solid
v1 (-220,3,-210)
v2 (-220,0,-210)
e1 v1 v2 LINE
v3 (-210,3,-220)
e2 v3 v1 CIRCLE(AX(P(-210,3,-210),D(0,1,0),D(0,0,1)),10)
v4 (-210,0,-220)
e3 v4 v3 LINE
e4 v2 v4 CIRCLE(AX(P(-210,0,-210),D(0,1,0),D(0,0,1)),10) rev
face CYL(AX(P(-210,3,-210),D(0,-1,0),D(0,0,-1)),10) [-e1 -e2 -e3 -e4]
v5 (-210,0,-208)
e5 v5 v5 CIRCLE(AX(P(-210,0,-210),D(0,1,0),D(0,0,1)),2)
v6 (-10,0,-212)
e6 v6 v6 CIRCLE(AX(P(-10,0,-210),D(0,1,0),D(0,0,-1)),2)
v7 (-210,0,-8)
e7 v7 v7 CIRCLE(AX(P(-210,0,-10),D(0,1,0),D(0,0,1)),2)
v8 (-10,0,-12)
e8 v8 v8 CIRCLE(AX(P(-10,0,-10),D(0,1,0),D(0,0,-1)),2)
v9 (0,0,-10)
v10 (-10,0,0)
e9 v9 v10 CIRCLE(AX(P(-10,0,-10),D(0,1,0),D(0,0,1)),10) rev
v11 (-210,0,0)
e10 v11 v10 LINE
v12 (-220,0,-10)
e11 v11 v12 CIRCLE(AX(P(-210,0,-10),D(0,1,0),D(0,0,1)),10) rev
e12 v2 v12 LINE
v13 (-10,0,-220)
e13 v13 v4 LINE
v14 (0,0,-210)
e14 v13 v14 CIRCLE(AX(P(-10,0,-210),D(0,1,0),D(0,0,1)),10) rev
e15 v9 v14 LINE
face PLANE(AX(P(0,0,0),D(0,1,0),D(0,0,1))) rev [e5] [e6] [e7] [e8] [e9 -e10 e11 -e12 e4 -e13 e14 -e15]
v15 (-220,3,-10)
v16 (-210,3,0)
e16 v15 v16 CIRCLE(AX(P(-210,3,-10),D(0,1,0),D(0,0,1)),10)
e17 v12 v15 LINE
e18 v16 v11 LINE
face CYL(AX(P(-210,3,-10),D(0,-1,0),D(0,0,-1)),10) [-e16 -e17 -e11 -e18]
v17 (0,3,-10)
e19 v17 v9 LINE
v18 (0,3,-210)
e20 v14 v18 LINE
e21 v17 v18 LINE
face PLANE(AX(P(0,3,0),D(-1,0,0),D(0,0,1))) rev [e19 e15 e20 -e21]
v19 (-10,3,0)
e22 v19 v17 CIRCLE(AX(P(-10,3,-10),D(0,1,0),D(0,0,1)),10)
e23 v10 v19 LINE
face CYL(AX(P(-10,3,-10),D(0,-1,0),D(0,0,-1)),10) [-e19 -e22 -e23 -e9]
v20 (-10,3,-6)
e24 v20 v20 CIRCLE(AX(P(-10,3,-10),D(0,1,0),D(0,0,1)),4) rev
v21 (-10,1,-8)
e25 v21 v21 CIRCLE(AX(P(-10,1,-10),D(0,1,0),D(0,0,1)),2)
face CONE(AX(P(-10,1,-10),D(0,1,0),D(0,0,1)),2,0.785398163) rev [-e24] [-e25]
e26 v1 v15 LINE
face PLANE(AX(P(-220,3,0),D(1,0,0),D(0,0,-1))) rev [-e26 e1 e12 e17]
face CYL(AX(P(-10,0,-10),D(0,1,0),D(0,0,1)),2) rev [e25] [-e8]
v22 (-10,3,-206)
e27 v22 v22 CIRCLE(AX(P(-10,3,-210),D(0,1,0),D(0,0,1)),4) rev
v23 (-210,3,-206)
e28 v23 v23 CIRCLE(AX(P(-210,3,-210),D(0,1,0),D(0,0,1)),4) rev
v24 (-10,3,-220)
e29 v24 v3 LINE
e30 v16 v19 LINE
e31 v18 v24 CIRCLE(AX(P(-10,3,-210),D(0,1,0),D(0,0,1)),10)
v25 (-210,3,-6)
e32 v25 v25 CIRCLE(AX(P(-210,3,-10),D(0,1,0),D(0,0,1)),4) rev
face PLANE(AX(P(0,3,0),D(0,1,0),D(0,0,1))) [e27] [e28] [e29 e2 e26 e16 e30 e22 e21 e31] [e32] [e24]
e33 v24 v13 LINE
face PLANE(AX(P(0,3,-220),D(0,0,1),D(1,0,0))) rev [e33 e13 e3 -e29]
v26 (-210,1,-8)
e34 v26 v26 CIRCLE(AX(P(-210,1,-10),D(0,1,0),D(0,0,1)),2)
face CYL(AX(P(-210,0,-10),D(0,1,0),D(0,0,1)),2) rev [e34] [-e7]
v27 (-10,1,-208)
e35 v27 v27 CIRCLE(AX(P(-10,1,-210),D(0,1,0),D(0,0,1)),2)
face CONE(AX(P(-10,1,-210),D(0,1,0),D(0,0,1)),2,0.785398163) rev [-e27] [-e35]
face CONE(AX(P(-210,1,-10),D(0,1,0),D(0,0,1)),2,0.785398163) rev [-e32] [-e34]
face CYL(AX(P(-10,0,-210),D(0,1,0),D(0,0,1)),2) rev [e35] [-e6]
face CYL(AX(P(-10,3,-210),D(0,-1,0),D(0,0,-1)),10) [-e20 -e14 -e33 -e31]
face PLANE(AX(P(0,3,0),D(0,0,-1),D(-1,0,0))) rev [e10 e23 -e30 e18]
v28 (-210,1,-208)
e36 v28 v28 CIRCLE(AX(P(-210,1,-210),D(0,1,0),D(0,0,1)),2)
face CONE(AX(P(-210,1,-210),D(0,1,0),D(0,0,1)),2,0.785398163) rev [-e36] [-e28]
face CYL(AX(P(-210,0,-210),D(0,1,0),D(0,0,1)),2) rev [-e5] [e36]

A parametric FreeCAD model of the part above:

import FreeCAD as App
import Part
import Sketcher

V = App.Vector


def edges_at(feature, points):
    """Names of the edges that pass closest to the given points."""
    edges = feature.Shape.Edges
    near = lambda p: min(range(len(edges)), key=lambda i: edges[i].distToShape(Part.Vertex(*p))[0])
    return sorted({f"Edge{near(p) + 1}" for p in points})

doc = App.newDocument("Part")
params = doc.addObject("Spreadsheet::Sheet", "Params")
for row, (alias, value) in enumerate([
    ("sketch1_width", "220 mm"),
    ("pad1_length", "3 mm"),
    ("fillet_radius", "10 mm"),
    ("sketch2_diameter", "4 mm"),
    ("pocket1_length", "3 mm"),
    ("chamfer_size", "2 mm"),
], start=1):
    params.set(f"A{row}", alias)
    params.set(f"B{row}", "=" + value)
    params.setAlias(f"B{row}", alias)

body = doc.addObject("PartDesign::Body", "Body")

# Sketch on XZ plane
sketch1 = doc.addObject("Sketcher::SketchObject", "Sketch")
body.addObject(sketch1)
sketch1.AttachmentSupport = (doc.XZ_Plane, [""])
sketch1.MapMode = "FlatFace"
sketch1.addGeometry(Part.LineSegment(V(-220, -220, 0), V(-220, 0, 0)), False)
sketch1.addGeometry(Part.LineSegment(V(-220, 0, 0), V(0, 0, 0)), False)
sketch1.addGeometry(Part.LineSegment(V(0, 0, 0), V(0, -220, 0)), False)
sketch1.addGeometry(Part.LineSegment(V(0, -220, 0), V(-220, -220, 0)), False)
sketch1.addConstraint(Sketcher.Constraint("Coincident", 0, 2, 1, 1))
sketch1.addConstraint(Sketcher.Constraint("Coincident", 1, 2, 2, 1))
sketch1.addConstraint(Sketcher.Constraint("Coincident", 2, 2, 3, 1))
sketch1.addConstraint(Sketcher.Constraint("Coincident", 3, 2, 0, 1))
sketch1.addConstraint(Sketcher.Constraint("Vertical", 0))
sketch1.addConstraint(Sketcher.Constraint("Horizontal", 1))
sketch1.addConstraint(Sketcher.Constraint("Vertical", 2))
sketch1.addConstraint(Sketcher.Constraint("Horizontal", 3))
sketch1.addConstraint(Sketcher.Constraint("Coincident", 1, 2, -1, 1))
sketch1.addConstraint(Sketcher.Constraint("Equal", 3, 0))
sketch1.addConstraint(Sketcher.Constraint("DistanceX", 1, 1, 1, 2, 220.0))
sketch1.setExpression("Constraints[10]", "Params.sketch1_width")
pad1 = doc.addObject("PartDesign::Pad", "Pad")
body.addObject(pad1)
pad1.Profile = sketch1
pad1.setExpression("Length", "Params.pad1_length")
pad1.Reversed = True
doc.recompute()

fillet = doc.addObject("PartDesign::Fillet", "Fillet")
body.addObject(fillet)
fillet.Base = (pad1, edges_at(pad1, [
    (0, 1.5, 0),
    (-220, 1.5, 0),
    (-220, 1.5, -220),
    (0, 1.5, -220),
]))
fillet.setExpression("Radius", "Params.fillet_radius")

# Sketch on XZ plane
sketch2 = doc.addObject("Sketcher::SketchObject", "Sketch001")
body.addObject(sketch2)
sketch2.AttachmentSupport = (doc.XZ_Plane, [""])
sketch2.MapMode = "FlatFace"
sketch2.AttachmentOffset = App.Placement(V(0, 0, -3), App.Rotation())
sketch2.addGeometry(Part.Circle(V(-210, -210, 0), V(0, 0, 1), 2), False)
sketch2.addGeometry(Part.Circle(V(-210, -10, 0), V(0, 0, 1), 2), False)
sketch2.addGeometry(Part.Circle(V(-10, -10, 0), V(0, 0, 1), 2), False)
sketch2.addGeometry(Part.Circle(V(-10, -210, 0), V(0, 0, 1), 2), False)
sketch2.addConstraint(Sketcher.Constraint("Equal", 0, 1))
sketch2.addConstraint(Sketcher.Constraint("Equal", 1, 2))
sketch2.addConstraint(Sketcher.Constraint("Equal", 2, 3))
sketch2.addConstraint(Sketcher.Constraint("Horizontal", 1, 3, 2, 3))
sketch2.addConstraint(Sketcher.Constraint("Horizontal", 0, 3, 3, 3))
sketch2.addConstraint(Sketcher.Constraint("Vertical", 0, 3, 1, 3))
sketch2.addConstraint(Sketcher.Constraint("Vertical", 2, 3, 3, 3))
sketch2.addConstraint(Sketcher.Constraint("Diameter", 0, 4.0))
sketch2.addConstraint(Sketcher.Constraint("DistanceX", 0, 3, -1, 1, 210.0))
sketch2.addConstraint(Sketcher.Constraint("DistanceY", 0, 3, -1, 1, 210.0))
sketch2.addConstraint(Sketcher.Constraint("DistanceY", 1, 3, -1, 1, 10.0))
sketch2.addConstraint(Sketcher.Constraint("DistanceX", 2, 3, -1, 1, 10.0))
sketch2.setExpression("Constraints[7]", "Params.sketch2_diameter")
pocket1 = doc.addObject("PartDesign::Pocket", "Pocket")
body.addObject(pocket1)
pocket1.Profile = sketch2
pocket1.setExpression("Length", "Params.pocket1_length")
pocket1.Reversed = True
doc.recompute()

chamfer = doc.addObject("PartDesign::Chamfer", "Chamfer")
body.addObject(chamfer)
chamfer.Base = (pocket1, edges_at(pocket1, [
    (-10, 3, -208),
    (-10, 3, -8),
    (-210, 3, -12),
    (-210, 3, -212),
]))
chamfer.setExpression("Size", "Params.chamfer_size")

doc.recompute()
